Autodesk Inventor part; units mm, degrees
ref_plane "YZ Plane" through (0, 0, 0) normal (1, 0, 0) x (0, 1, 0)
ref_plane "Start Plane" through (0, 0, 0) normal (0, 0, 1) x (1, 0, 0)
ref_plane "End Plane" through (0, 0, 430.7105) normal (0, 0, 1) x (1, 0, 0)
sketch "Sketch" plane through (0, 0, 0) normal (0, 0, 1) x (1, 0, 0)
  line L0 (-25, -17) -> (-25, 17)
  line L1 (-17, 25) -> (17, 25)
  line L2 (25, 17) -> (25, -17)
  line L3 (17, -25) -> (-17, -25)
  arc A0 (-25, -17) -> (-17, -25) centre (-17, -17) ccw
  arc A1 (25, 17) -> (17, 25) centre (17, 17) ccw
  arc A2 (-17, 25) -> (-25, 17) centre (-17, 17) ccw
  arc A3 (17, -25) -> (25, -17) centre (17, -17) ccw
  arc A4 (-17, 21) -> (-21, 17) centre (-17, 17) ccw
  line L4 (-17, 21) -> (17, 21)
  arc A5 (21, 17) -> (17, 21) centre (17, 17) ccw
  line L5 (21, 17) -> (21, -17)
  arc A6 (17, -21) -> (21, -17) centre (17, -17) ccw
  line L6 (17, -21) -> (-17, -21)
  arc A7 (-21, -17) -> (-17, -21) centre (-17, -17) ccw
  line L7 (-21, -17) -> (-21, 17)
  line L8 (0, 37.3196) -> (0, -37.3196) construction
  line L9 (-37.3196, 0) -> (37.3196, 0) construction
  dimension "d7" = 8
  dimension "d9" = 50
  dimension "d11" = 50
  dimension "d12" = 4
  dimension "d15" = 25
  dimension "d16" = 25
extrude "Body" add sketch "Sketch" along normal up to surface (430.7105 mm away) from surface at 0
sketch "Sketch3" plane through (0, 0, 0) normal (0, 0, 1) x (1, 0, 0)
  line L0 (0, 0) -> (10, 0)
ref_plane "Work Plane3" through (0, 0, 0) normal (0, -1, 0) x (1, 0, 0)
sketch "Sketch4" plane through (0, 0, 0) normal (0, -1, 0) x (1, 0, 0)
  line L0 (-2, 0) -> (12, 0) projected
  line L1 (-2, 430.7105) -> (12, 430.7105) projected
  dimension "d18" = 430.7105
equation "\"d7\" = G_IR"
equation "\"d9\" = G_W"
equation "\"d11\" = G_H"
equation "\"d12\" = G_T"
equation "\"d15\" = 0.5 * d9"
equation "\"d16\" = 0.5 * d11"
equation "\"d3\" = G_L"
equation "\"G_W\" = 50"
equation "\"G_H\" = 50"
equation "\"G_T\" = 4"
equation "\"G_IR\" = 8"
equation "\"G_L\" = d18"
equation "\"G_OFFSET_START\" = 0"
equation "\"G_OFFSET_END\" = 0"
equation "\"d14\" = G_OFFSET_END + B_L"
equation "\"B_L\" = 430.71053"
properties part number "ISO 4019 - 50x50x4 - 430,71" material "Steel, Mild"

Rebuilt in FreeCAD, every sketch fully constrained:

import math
import FreeCAD as App
import Part
import Sketcher
from FreeCAD import Vector
Q = App.Units.Quantity

doc = App.newDocument("Part")
body = doc.addObject("PartDesign::Body", "Body")

# Sketch on XY plane
sketch1 = body.newObject("Sketcher::SketchObject", "Sketch")
sketch1.AttachmentSupport = (doc.getObject("XY_Plane"), [""])
sketch1.MapMode = "FlatFace"
sketch1.addGeometry([
    Part.LineSegment(Vector(-25, 17, 0), Vector(-25, -17, 0)),  # 0
    Part.ArcOfCircle(Part.Circle(Vector(-17, -17, 0), Vector(0, 0, 1), 8), math.radians(180), math.radians(270)),  # 1
    Part.LineSegment(Vector(-17, -25, 0), Vector(17, -25, 0)),  # 2
    Part.ArcOfCircle(Part.Circle(Vector(17, -17, 0), Vector(0, 0, 1), 8), math.radians(-90), math.radians(0)),  # 3
    Part.LineSegment(Vector(25, -17, 0), Vector(25, 17, 0)),  # 4
    Part.ArcOfCircle(Part.Circle(Vector(17, 17, 0), Vector(0, 0, 1), 8), math.radians(0), math.radians(90)),  # 5
    Part.LineSegment(Vector(17, 25, 0), Vector(-17, 25, 0)),  # 6
    Part.ArcOfCircle(Part.Circle(Vector(-17, 17, 0), Vector(0, 0, 1), 8), math.radians(90), math.radians(180)),  # 7
    Part.ArcOfCircle(Part.Circle(Vector(-17, 17, 0), Vector(0, 0, 1), 4), math.radians(90), math.radians(180)),  # 8
    Part.LineSegment(Vector(-17, 21, 0), Vector(17, 21, 0)),  # 9
    Part.ArcOfCircle(Part.Circle(Vector(17, 17, 0), Vector(0, 0, 1), 4), math.radians(0), math.radians(90)),  # 10
    Part.LineSegment(Vector(21, 17, 0), Vector(21, -17, 0)),  # 11
    Part.ArcOfCircle(Part.Circle(Vector(17, -17, 0), Vector(0, 0, 1), 4), math.radians(-90), math.radians(0)),  # 12
    Part.LineSegment(Vector(17, -21, 0), Vector(-17, -21, 0)),  # 13
    Part.ArcOfCircle(Part.Circle(Vector(-17, -17, 0), Vector(0, 0, 1), 4), math.radians(180), math.radians(270)),  # 14
    Part.LineSegment(Vector(-21, -17, 0), Vector(-21, 17, 0)),  # 15
], False)
sketch1.addConstraint([
    Sketcher.Constraint("Tangent", 0, 2, 1, 1),
    Sketcher.Constraint("Tangent", 1, 2, 2, 1),
    Sketcher.Constraint("Tangent", 2, 2, 3, 1),
    Sketcher.Constraint("Tangent", 3, 2, 4, 1),
    Sketcher.Constraint("Tangent", 4, 2, 5, 1),
    Sketcher.Constraint("Tangent", 5, 2, 6, 1),
    Sketcher.Constraint("Tangent", 6, 2, 7, 1),
    Sketcher.Constraint("Tangent", 7, 2, 0, 1),
    Sketcher.Constraint("Tangent", 8, 1, 9, 1),
    Sketcher.Constraint("Tangent", 9, 2, 10, 2),
    Sketcher.Constraint("Tangent", 10, 1, 11, 1),
    Sketcher.Constraint("Tangent", 11, 2, 12, 2),
    Sketcher.Constraint("Tangent", 12, 1, 13, 1),
    Sketcher.Constraint("Tangent", 13, 2, 14, 2),
    Sketcher.Constraint("Tangent", 14, 1, 15, 1),
    Sketcher.Constraint("Tangent", 15, 2, 8, 2),
    Sketcher.Constraint("Vertical", 0),
    Sketcher.Constraint("Horizontal", 2),
    Sketcher.Constraint("Vertical", 4),
    Sketcher.Constraint("Horizontal", 6),
    Sketcher.Constraint("Horizontal", 9),
    Sketcher.Constraint("Vertical", 11),
    Sketcher.Constraint("Horizontal", 13),
    Sketcher.Constraint("Vertical", 15),
    Sketcher.Constraint("Coincident", 8, 3, 7, 3),
    Sketcher.Constraint("Coincident", 10, 3, 5, 3),
    Sketcher.Constraint("Coincident", 12, 3, 3, 3),
    Sketcher.Constraint("Equal", 1, 3),
    Sketcher.Constraint("Equal", 3, 5),
    Sketcher.Constraint("Equal", 5, 7),
    Sketcher.Constraint("Equal", 12, 14),
    Sketcher.Constraint("Symmetric", 1, 3, 5, 3, -1, 1),
    Sketcher.Constraint("Equal", 13, 0),
    Sketcher.Constraint("Radius", 1, Q("8 mm")),
    Sketcher.Constraint("Radius", 8, Q("4 mm")),
    Sketcher.Constraint("DistanceX", 0, 2, -1, 1, Q("25 mm")),
])
pad1 = body.newObject("PartDesign::Pad", "Pad")
pad1.Profile = sketch1
pad1.Length = 430.7105

doc.recompute()
